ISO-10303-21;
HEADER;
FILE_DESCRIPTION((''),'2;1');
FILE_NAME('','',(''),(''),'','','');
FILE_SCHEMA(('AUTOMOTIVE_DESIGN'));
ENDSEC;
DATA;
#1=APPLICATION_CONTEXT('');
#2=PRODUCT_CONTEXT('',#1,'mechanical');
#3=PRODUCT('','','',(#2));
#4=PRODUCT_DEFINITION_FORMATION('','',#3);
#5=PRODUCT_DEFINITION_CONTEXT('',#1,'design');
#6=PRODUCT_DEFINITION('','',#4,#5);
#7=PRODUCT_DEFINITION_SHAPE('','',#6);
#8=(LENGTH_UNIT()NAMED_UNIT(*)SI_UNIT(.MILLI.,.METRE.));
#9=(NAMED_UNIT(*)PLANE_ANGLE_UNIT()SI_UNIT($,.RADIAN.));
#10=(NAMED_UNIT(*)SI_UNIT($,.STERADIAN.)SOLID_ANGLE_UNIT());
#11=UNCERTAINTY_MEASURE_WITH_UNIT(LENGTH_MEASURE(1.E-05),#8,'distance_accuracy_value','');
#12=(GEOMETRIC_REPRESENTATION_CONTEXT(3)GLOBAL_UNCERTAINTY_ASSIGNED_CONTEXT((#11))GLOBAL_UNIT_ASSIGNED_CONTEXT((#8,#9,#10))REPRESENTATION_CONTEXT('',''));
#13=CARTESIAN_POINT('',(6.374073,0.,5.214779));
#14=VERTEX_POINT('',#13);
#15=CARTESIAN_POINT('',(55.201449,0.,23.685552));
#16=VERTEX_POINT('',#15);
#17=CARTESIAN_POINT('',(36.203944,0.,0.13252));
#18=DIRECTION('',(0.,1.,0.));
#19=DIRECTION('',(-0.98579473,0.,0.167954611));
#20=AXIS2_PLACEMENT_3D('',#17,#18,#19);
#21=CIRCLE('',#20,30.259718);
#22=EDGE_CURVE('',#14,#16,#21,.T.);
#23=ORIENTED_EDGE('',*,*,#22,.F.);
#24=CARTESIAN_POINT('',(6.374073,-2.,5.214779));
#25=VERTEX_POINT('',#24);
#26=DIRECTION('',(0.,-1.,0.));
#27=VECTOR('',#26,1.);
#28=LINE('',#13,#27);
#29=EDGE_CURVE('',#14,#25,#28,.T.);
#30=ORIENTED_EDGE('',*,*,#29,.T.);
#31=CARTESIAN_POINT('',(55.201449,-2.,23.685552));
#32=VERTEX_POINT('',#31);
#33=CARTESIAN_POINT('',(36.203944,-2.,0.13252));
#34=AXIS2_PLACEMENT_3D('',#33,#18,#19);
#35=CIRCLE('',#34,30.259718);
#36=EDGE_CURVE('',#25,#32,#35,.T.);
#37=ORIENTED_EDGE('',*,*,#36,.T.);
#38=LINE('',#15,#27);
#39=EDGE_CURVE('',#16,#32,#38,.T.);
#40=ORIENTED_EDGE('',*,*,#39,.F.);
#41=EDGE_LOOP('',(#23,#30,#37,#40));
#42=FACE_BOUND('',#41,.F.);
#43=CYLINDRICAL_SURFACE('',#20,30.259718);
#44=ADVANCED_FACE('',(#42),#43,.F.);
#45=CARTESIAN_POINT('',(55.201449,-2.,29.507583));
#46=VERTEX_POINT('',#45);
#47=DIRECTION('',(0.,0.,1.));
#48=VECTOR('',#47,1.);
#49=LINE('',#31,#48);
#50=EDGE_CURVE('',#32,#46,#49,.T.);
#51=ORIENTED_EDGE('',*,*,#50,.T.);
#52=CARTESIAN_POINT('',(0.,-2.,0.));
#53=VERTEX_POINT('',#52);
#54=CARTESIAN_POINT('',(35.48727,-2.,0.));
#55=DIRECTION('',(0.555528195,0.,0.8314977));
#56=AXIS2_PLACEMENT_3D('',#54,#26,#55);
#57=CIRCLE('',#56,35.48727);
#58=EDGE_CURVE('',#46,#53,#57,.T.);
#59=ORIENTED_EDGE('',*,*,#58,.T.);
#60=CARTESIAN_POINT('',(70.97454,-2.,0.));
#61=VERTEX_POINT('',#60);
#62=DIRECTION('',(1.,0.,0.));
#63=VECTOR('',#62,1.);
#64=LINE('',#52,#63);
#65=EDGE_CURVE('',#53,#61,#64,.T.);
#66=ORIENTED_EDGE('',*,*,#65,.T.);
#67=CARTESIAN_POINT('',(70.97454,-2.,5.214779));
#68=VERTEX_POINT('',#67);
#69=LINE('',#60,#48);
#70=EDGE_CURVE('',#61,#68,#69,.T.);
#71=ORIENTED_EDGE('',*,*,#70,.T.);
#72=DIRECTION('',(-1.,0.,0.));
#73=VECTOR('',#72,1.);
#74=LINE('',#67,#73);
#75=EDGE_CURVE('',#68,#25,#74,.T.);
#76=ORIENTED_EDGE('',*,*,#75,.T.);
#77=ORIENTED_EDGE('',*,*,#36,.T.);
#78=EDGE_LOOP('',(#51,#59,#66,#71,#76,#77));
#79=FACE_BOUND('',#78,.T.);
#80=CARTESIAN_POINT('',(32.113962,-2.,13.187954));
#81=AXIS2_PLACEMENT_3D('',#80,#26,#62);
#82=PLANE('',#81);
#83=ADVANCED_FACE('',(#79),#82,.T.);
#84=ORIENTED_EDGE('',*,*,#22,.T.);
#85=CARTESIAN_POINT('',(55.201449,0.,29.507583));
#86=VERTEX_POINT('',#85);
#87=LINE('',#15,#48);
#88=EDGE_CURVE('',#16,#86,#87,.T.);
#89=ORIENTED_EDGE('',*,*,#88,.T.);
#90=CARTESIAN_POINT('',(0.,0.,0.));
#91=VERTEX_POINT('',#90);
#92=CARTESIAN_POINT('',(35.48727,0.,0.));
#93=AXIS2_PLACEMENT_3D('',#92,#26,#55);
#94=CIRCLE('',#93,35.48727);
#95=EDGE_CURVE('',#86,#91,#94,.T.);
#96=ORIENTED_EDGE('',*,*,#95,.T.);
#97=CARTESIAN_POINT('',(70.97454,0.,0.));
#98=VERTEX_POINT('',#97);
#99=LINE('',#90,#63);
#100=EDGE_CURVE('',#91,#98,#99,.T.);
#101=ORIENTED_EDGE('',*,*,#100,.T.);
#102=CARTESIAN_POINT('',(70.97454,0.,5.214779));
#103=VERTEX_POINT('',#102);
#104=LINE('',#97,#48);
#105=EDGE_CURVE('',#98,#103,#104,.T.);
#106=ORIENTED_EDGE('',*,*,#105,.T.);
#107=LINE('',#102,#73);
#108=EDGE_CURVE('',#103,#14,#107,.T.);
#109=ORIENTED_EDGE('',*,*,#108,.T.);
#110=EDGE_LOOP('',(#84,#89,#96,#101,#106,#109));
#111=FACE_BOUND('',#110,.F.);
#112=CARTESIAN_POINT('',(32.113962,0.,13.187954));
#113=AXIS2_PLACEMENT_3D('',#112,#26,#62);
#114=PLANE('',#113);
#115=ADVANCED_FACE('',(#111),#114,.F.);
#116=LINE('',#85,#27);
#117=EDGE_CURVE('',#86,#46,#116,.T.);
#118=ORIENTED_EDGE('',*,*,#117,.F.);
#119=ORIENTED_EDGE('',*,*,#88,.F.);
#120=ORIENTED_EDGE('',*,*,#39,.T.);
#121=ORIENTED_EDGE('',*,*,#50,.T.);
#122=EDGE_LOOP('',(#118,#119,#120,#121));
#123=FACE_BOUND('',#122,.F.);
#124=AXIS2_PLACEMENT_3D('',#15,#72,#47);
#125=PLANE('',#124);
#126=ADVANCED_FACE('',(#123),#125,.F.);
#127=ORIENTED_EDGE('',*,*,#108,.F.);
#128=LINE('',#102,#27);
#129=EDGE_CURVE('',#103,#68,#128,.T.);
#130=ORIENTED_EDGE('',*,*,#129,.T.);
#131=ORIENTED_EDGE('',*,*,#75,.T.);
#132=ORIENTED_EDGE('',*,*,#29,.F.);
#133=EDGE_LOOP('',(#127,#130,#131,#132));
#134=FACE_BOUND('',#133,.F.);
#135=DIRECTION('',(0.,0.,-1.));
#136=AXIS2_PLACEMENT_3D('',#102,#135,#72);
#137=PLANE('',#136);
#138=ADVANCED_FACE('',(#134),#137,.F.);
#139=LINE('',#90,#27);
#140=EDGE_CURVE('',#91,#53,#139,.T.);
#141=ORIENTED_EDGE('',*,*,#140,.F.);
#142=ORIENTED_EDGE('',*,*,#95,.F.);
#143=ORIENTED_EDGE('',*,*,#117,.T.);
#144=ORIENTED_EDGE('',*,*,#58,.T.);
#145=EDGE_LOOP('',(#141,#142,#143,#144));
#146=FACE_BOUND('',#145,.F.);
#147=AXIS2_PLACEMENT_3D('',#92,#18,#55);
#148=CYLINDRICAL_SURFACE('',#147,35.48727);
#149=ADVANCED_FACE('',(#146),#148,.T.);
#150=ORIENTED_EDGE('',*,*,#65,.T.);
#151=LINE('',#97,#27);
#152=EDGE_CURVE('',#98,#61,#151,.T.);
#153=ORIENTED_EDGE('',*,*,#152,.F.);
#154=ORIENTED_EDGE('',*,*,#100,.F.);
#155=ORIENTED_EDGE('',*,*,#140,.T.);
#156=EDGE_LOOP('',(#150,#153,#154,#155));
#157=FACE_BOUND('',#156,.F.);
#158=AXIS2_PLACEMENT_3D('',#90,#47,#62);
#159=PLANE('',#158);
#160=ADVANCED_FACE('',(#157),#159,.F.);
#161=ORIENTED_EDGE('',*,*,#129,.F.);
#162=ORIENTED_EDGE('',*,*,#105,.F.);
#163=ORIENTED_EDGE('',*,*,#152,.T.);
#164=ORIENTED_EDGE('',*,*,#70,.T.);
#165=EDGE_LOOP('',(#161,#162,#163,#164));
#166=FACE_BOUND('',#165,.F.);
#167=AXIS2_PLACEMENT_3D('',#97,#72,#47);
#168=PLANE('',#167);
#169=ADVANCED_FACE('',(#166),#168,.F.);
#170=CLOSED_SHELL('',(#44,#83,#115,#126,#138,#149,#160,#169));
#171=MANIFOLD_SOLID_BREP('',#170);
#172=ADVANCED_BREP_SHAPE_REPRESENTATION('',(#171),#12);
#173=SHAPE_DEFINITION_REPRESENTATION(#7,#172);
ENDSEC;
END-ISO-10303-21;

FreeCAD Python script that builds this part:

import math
import FreeCAD as App
import Part
import Sketcher
from FreeCAD import Vector
Q = App.Units.Quantity

doc = App.newDocument("Part")
body = doc.addObject("PartDesign::Body", "Body")

# Sketch on XZ plane
sketch1 = body.newObject("Sketcher::SketchObject", "Sketch")
sketch1.AttachmentSupport = (doc.getObject("XZ_Plane"), [""])
sketch1.MapMode = "FlatFace"
sketch1.addGeometry(Part.ArcOfCircle(Part.Circle(Vector(35.48727, 0, 0), Vector(0, 0, 1), 35.48727), math.radians(56.252897), math.radians(179.999999)), False)
sketch1.addGeometry(Part.LineSegment(Vector(0, 0, 0), Vector(70.97454, 0, 0)), False)
sketch1.addGeometry(Part.LineSegment(Vector(70.97454, 0, 0), Vector(70.97454, 5.214779, 0)), False)
sketch1.addGeometry(Part.LineSegment(Vector(70.97454, 5.214779, 0), Vector(6.374073, 5.214779, 0)), False)
sketch1.addGeometry(Part.ArcOfCircle(Part.Circle(Vector(36.203944, 0.13252, 0), Vector(0, 0, 1), 30.259718), math.radians(51.110898), math.radians(170.331083)), False)
sketch1.addGeometry(Part.LineSegment(Vector(55.201449, 23.685552, 0), Vector(55.201449, 29.507583, 0)), False)
sketch1.addConstraint(Sketcher.Constraint("Coincident", 0, 2, 1, 1))
sketch1.addConstraint(Sketcher.Constraint("Coincident", 1, 2, 2, 1))
sketch1.addConstraint(Sketcher.Constraint("Coincident", 2, 2, 3, 1))
sketch1.addConstraint(Sketcher.Constraint("Coincident", 3, 2, 4, 2))
sketch1.addConstraint(Sketcher.Constraint("Coincident", 4, 1, 5, 1))
sketch1.addConstraint(Sketcher.Constraint("Coincident", 5, 2, 0, 1))
sketch1.addConstraint(Sketcher.Constraint("Horizontal", 1))
sketch1.addConstraint(Sketcher.Constraint("Vertical", 2))
sketch1.addConstraint(Sketcher.Constraint("Horizontal", 3))
sketch1.addConstraint(Sketcher.Constraint("Vertical", 5))
sketch1.addConstraint(Sketcher.Constraint("Coincident", 0, 2, -1, 1))
sketch1.addConstraint(Sketcher.Constraint("PointOnObject", 0, 3, -1))
sketch1.addConstraint(Sketcher.Constraint("Radius", 0, Q("35.48727 mm")))
sketch1.addConstraint(Sketcher.Constraint("Radius", 4, Q("30.259718 mm")))
sketch1.addConstraint(Sketcher.Constraint("DistanceX", 1, 1, 1, 2, Q("70.97454 mm")))
sketch1.addConstraint(Sketcher.Constraint("DistanceY", 2, 1, 2, 2, Q("5.214779 mm")))
sketch1.addConstraint(Sketcher.Constraint("DistanceY", 5, 1, 5, 2, Q("5.822031 mm")))
sketch1.addConstraint(Sketcher.Constraint("DistanceX", 3, 2, 3, 1, Q("64.600467 mm")))
sketch1.addConstraint(Sketcher.Constraint("DistanceY", -1, 1, 4, 3, Q("0.13252 mm")))
pad1 = body.newObject("PartDesign::Pad", "Pad")
pad1.Profile = sketch1
pad1.Length = 2

doc.recompute()
